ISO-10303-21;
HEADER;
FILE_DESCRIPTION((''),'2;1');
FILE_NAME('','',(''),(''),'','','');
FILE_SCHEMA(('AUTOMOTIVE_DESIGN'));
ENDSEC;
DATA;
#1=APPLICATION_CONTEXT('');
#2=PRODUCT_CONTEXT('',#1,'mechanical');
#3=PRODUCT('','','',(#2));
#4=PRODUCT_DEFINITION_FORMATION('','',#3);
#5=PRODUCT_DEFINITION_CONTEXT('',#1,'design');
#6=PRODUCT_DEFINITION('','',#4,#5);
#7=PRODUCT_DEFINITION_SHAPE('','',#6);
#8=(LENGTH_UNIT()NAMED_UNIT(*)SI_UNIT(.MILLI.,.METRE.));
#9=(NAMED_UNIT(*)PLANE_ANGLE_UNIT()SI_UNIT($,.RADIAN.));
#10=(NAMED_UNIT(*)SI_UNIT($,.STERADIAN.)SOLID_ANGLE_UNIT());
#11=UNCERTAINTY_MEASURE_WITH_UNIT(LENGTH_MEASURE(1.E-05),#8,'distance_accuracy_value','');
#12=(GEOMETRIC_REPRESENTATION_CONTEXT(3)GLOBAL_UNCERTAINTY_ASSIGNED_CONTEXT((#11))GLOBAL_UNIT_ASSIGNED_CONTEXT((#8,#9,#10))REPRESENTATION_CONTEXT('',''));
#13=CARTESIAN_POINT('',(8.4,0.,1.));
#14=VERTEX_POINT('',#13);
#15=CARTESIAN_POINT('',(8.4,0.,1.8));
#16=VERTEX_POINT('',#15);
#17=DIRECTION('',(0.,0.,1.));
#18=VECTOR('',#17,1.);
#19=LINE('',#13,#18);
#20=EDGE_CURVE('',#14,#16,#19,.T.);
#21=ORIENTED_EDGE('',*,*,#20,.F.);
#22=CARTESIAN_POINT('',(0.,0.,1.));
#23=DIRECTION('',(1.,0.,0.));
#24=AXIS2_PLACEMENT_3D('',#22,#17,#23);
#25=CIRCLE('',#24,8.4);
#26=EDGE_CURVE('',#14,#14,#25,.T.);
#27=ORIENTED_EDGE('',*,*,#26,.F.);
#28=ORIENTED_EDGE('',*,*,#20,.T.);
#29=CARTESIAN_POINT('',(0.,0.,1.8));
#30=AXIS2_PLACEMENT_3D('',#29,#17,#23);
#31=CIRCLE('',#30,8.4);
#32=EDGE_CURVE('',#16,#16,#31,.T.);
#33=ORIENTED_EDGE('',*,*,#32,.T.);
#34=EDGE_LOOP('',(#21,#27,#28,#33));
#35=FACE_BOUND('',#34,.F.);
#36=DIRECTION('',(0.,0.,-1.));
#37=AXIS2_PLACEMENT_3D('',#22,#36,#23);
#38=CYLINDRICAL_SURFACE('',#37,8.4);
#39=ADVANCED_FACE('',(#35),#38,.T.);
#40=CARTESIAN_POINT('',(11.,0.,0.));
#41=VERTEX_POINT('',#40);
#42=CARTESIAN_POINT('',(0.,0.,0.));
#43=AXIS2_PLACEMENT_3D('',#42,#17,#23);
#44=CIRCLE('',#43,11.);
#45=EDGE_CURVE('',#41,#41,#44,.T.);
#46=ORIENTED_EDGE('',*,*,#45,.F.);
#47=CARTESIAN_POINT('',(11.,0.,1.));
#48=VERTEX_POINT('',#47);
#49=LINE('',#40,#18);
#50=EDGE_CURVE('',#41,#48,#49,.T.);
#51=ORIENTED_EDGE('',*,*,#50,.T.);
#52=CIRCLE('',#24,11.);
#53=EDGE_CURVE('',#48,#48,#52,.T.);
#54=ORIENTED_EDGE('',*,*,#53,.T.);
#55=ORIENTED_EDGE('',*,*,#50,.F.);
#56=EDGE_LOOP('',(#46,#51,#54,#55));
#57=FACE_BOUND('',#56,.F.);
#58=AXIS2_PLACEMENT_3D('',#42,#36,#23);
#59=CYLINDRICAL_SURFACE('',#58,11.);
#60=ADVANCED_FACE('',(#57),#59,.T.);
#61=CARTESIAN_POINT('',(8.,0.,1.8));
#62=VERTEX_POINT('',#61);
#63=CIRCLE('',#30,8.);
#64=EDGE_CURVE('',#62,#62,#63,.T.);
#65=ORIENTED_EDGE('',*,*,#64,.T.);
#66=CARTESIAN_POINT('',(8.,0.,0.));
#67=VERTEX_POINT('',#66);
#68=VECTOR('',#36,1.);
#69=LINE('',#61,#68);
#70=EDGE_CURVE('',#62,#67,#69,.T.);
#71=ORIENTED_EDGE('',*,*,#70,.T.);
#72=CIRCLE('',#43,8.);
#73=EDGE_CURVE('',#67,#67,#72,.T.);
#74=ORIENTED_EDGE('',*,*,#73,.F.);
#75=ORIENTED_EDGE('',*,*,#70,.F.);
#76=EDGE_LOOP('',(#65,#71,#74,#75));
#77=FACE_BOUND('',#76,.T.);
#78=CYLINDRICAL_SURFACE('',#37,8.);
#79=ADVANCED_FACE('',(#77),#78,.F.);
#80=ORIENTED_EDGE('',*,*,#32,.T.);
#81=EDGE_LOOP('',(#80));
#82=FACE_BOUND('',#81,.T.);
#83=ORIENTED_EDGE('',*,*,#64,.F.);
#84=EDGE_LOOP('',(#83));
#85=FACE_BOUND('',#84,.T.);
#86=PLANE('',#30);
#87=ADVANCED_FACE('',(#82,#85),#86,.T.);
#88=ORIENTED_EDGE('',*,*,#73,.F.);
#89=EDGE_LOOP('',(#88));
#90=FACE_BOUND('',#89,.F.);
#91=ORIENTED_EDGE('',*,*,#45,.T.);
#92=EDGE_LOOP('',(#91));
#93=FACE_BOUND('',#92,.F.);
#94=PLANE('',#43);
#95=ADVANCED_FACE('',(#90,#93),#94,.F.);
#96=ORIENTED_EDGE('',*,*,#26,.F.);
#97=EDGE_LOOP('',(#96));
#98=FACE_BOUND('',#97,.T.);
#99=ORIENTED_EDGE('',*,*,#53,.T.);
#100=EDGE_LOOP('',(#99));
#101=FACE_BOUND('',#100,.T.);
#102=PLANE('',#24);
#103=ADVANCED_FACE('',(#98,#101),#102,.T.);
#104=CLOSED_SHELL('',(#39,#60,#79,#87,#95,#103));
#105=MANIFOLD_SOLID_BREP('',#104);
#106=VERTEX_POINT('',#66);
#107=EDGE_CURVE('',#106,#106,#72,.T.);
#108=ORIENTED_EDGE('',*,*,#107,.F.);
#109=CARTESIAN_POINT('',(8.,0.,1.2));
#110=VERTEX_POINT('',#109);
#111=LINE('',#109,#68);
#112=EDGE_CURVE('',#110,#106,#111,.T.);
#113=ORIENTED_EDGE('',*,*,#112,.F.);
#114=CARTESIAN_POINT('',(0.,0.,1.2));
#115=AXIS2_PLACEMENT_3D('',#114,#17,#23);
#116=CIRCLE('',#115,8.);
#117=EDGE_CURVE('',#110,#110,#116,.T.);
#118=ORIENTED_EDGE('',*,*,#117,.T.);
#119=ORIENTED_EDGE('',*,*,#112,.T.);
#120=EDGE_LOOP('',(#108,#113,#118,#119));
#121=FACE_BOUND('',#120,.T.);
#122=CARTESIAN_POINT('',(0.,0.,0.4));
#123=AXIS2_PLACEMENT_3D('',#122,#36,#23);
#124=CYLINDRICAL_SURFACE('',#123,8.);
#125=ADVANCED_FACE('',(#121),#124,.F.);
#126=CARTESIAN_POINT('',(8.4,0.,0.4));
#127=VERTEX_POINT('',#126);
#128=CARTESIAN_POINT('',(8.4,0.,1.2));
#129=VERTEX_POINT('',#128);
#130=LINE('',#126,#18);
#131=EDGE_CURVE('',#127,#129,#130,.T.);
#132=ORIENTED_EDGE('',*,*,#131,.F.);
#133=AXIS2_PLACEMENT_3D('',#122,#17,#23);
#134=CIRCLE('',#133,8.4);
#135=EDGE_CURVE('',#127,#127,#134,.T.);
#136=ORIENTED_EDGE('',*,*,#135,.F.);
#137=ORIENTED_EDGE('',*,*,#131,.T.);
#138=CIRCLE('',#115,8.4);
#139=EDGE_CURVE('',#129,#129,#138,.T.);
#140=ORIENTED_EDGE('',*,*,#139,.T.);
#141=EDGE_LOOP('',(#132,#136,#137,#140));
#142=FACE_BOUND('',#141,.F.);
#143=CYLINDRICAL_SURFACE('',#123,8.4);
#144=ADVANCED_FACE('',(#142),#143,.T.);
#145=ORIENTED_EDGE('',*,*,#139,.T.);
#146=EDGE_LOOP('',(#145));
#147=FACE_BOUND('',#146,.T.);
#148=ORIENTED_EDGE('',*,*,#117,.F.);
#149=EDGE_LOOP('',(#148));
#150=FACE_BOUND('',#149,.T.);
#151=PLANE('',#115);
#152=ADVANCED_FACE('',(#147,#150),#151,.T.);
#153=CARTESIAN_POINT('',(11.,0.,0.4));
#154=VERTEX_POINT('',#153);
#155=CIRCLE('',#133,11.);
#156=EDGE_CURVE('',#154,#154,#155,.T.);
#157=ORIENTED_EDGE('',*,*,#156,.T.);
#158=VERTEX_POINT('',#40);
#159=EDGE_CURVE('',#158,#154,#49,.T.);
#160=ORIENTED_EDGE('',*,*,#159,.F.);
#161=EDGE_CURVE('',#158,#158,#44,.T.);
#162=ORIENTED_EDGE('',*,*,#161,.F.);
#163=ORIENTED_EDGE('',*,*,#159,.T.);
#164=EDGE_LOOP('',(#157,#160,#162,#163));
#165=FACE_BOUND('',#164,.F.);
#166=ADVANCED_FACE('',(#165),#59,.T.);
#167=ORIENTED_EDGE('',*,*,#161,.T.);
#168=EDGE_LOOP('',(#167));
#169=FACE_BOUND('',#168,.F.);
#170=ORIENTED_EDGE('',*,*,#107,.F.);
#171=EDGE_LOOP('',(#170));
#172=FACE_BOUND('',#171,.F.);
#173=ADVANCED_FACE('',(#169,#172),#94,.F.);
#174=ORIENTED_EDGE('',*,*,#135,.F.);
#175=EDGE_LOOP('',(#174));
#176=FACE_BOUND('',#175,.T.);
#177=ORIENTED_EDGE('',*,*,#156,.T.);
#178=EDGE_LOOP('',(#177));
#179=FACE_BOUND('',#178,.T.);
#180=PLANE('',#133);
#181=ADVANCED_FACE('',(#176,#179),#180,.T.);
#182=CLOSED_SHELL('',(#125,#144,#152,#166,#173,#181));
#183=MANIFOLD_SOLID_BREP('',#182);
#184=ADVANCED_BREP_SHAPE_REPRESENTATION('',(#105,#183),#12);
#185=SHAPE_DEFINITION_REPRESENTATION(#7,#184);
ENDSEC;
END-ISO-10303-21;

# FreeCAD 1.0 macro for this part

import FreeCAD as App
import Part
import Sketcher

V = App.Vector

doc = App.newDocument("Part")
body = doc.addObject("PartDesign::Body", "Body")

sketch1 = body.newObject("Sketcher::SketchObject", "Sketch")
sketch1.AttachmentSupport = (doc.getObject("XY_Plane"), [""])
sketch1.MapMode = "FlatFace"
sketch1.addGeometry([
    Part.Circle(V(0, 0, 0), V(0, 0, 1), 11),
    Part.Circle(V(0, 0, 0), V(0, 0, 1), 8),
], False)
sketch1.addConstraint([
    Sketcher.Constraint("Coincident", 0, 3, -1, 1),
    Sketcher.Constraint("Coincident", 1, 3, -1, 1),
    Sketcher.Constraint("Diameter", 0, 22.0),
    Sketcher.Constraint("Diameter", 1, 16.0),
])
pad1 = body.newObject("PartDesign::Pad", "Pad")
pad1.Profile = sketch1
pad1.Length = 1

sketch2 = body.newObject("Sketcher::SketchObject", "Sketch001")
sketch2.AttachmentSupport = (doc.getObject("XY_Plane"), [""])
sketch2.MapMode = "FlatFace"
sketch2.AttachmentOffset = App.Placement(V(0, 0, 1), App.Rotation())
sketch2.addGeometry([
    Part.Circle(V(0, 0, 0), V(0, 0, 1), 8),
    Part.Circle(V(0, 0, 0), V(0, 0, 1), 8),
], False)
sketch2.addConstraint([
    Sketcher.Constraint("Coincident", 0, 3, -1, 1),
    Sketcher.Constraint("Coincident", 1, 3, -1, 1),
    Sketcher.Constraint("Diameter", 1, 16.0),
    Sketcher.Constraint("Diameter", 0, 16.8),
])
pad2 = body.newObject("PartDesign::Pad", "Pad001")
pad2.Profile = sketch2
pad2.Length = 0.8
body2 = doc.addObject("PartDesign::Body", "Body001")

sketch3 = body2.newObject("Sketcher::SketchObject", "Sketch002")
sketch3.AttachmentSupport = (doc.getObject("XY_Plane001"), [""])
sketch3.MapMode = "FlatFace"
sketch3.addGeometry([
    Part.Circle(V(0, 0, 0), V(0, 0, 1), 11),
    Part.Circle(V(0, 0, 0), V(0, 0, 1), 8),
], False)
sketch3.addConstraint([
    Sketcher.Constraint("Coincident", 0, 3, -1, 1),
    Sketcher.Constraint("Coincident", 1, 3, -1, 1),
    Sketcher.Constraint("Diameter", 0, 22.0),
    Sketcher.Constraint("Diameter", 1, 16.0),
])
pad3 = body2.newObject("PartDesign::Pad", "Pad002")
pad3.Profile = sketch3
pad3.Length = 0.4

sketch4 = body2.newObject("Sketcher::SketchObject", "Sketch003")
sketch4.AttachmentSupport = (doc.getObject("XY_Plane001"), [""])
sketch4.MapMode = "FlatFace"
sketch4.AttachmentOffset = App.Placement(V(0, 0, 0.4), App.Rotation())
sketch4.addGeometry([
    Part.Circle(V(0, 0, 0), V(0, 0, 1), 8),
    Part.Circle(V(0, 0, 0), V(0, 0, 1), 8),
], False)
sketch4.addConstraint([
    Sketcher.Constraint("Coincident", 0, 3, -1, 1),
    Sketcher.Constraint("Coincident", 1, 3, -1, 1),
    Sketcher.Constraint("Diameter", 1, 16.0),
    Sketcher.Constraint("Diameter", 0, 16.8),
])
pad4 = body2.newObject("PartDesign::Pad", "Pad003")
pad4.Profile = sketch4
pad4.Length = 0.8

doc.recompute()
